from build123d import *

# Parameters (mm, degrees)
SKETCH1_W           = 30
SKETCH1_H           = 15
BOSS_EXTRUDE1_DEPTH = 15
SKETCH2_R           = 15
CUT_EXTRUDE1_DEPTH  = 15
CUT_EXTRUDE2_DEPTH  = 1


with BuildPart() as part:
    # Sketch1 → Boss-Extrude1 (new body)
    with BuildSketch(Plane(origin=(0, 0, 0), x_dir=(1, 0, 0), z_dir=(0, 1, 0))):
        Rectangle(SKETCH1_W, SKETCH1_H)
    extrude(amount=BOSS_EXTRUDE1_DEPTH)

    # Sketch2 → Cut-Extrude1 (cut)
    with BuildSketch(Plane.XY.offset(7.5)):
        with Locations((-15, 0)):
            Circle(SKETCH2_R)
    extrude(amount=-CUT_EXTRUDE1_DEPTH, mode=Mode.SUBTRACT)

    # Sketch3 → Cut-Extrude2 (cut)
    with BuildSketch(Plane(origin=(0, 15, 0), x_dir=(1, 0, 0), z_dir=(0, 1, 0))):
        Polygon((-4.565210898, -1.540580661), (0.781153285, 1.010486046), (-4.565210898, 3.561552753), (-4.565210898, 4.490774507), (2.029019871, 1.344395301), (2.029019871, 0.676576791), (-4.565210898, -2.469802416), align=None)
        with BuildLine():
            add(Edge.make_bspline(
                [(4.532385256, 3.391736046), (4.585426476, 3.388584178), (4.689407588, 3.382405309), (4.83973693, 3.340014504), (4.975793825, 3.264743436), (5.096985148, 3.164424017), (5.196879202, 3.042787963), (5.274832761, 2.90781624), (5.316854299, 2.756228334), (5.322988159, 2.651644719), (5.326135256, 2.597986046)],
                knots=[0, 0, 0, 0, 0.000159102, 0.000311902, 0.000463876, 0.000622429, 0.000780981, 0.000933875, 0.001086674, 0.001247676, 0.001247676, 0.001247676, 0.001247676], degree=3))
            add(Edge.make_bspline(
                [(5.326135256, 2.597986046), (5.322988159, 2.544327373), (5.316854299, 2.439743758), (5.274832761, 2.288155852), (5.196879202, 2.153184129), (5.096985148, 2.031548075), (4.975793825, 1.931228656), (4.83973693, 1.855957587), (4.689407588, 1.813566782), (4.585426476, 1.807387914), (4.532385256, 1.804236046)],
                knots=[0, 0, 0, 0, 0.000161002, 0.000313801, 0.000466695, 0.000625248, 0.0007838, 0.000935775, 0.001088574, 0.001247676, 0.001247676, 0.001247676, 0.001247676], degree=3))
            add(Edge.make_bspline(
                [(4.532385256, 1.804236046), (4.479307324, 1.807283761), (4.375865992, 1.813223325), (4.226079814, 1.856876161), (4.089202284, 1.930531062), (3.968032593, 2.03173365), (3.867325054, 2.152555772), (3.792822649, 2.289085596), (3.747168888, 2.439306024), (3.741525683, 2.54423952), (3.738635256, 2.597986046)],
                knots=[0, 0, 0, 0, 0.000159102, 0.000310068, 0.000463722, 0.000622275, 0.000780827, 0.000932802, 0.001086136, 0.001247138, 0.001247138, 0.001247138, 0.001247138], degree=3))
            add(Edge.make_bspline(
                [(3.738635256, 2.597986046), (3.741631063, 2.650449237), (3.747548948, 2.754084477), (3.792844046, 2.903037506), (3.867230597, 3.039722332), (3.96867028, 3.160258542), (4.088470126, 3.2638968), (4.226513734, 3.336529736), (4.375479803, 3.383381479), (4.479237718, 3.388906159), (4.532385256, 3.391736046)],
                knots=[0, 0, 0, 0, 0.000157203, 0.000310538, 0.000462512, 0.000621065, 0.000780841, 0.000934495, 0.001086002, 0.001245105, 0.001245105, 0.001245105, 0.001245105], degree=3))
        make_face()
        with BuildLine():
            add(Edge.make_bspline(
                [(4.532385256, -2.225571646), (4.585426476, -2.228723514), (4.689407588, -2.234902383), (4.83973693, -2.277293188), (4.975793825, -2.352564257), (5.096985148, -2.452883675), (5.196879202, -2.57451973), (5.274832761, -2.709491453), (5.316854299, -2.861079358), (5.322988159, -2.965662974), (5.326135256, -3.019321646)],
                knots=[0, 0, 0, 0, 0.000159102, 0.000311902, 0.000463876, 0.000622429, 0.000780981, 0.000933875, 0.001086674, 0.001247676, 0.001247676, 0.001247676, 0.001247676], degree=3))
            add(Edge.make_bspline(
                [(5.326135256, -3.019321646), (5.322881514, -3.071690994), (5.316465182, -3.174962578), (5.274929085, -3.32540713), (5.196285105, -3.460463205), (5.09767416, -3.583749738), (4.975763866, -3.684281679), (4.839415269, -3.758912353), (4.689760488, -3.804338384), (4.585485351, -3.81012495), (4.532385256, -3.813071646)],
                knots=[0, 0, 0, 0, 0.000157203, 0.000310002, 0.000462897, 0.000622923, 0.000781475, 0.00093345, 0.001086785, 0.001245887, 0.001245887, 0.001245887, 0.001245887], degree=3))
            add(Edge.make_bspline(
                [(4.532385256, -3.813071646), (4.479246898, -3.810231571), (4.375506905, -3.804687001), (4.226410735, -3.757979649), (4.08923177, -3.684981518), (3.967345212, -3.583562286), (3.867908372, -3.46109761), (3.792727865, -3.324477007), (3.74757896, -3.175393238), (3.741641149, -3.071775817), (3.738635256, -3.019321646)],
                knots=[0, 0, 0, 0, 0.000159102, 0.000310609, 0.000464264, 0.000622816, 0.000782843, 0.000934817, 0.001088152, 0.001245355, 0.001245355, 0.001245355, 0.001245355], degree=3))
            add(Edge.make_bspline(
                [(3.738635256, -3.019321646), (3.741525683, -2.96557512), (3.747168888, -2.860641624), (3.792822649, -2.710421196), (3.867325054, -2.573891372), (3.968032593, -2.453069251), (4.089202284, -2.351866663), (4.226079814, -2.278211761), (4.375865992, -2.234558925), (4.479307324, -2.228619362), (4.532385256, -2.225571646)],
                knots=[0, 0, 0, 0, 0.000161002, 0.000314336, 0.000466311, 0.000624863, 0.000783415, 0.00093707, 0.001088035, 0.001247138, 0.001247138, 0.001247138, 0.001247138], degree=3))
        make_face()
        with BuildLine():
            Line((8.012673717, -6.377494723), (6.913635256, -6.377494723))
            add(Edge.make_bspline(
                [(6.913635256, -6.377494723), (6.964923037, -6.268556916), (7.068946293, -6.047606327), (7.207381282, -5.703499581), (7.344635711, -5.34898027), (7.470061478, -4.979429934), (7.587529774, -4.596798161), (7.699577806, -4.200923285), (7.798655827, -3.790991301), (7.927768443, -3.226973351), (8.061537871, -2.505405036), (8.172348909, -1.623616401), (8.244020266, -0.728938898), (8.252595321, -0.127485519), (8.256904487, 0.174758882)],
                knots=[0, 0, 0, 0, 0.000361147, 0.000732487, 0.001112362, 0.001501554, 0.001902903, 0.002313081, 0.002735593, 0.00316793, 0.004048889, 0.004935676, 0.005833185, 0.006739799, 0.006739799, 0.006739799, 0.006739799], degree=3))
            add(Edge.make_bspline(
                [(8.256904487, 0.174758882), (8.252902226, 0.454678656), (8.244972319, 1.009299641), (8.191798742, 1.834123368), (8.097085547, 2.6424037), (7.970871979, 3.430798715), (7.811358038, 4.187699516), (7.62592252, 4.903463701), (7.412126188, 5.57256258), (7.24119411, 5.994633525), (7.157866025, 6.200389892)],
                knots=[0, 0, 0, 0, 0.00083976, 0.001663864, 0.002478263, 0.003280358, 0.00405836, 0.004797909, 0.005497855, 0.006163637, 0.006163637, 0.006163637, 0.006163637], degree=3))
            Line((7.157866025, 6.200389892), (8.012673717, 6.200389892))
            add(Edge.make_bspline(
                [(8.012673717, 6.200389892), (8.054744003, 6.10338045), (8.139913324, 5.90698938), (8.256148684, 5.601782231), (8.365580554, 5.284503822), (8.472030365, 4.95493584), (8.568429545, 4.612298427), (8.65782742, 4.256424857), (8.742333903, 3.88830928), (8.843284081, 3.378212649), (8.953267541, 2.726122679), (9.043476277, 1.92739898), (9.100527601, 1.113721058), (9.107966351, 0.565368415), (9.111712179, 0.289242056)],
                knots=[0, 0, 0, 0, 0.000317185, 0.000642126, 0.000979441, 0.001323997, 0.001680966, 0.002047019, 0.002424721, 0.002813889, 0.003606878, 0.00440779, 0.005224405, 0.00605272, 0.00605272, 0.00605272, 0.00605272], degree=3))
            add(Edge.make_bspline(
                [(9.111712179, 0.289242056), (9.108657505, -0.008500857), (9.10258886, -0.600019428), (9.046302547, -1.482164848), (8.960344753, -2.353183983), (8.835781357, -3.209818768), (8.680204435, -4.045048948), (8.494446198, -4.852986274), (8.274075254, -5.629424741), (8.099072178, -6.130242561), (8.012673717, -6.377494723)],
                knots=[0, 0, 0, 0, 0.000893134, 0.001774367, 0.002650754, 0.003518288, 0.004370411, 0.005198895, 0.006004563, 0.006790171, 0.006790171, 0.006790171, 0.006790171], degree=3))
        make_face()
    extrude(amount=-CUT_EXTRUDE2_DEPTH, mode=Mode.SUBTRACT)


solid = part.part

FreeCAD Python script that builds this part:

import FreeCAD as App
import Part
import Sketcher
from FreeCAD import Vector
Q = App.Units.Quantity

doc = App.newDocument("Part")
body = doc.addObject("PartDesign::Body", "Body")

# Sketch on XZ plane
sketch1 = body.newObject("Sketcher::SketchObject", "Sketch")
sketch1.AttachmentSupport = (doc.getObject("XZ_Plane"), [""])
sketch1.MapMode = "FlatFace"
sketch1.addGeometry([
    Part.LineSegment(Vector(-15, -8, 0), Vector(-15, 8, 0)),
    Part.LineSegment(Vector(-15, 8, 0), Vector(15, 8, 0)),
    Part.LineSegment(Vector(15, 8, 0), Vector(15, -8, 0)),
    Part.LineSegment(Vector(15, -8, 0), Vector(-15, -8, 0)),
], False)
sketch1.addConstraint([
    Sketcher.Constraint("Coincident", 0, 2, 1, 1),
    Sketcher.Constraint("Coincident", 1, 2, 2, 1),
    Sketcher.Constraint("Coincident", 2, 2, 3, 1),
    Sketcher.Constraint("Coincident", 3, 2, 0, 1),
    Sketcher.Constraint("Vertical", 0),
    Sketcher.Constraint("Horizontal", 1),
    Sketcher.Constraint("Vertical", 2),
    Sketcher.Constraint("Horizontal", 3),
    Sketcher.Constraint("Symmetric", 0, 2, 2, 2, -1, 1),
    Sketcher.Constraint("DistanceX", 1, 1, 1, 2, Q("30 mm")),
    Sketcher.Constraint("DistanceY", 0, 1, 0, 2, Q("15 mm")),
])
pad1 = body.newObject("PartDesign::Pad", "Pad")
pad1.Profile = sketch1
pad1.Length = 15
pad1.Reversed = True

# Sketch on XY plane
sketch2 = body.newObject("Sketcher::SketchObject", "Sketch001")
sketch2.AttachmentSupport = (doc.getObject("XY_Plane"), [""])
sketch2.MapMode = "FlatFace"
sketch2.AttachmentOffset = App.Placement(Vector(0, 0, 7.5), App.Rotation())
sketch2.addGeometry(Part.Circle(Vector(-15, 0, 0), Vector(0, 0, 1), 15), False)
sketch2.addConstraint([
    Sketcher.Constraint("PointOnObject", 0, 3, -1),
    Sketcher.Constraint("Diameter", 0, Q("30 mm")),
    Sketcher.Constraint("DistanceX", 0, 3, -1, 1, Q("15 mm")),
])
pocket1 = body.newObject("PartDesign::Pocket", "Pocket")
pocket1.Profile = sketch2
pocket1.Length = 15

# Sketch on XZ plane
sketch3 = body.newObject("Sketcher::SketchObject", "Sketch002")
sketch3.AttachmentSupport = (doc.getObject("XZ_Plane"), [""])
sketch3.MapMode = "FlatFace"
sketch3.AttachmentOffset = App.Placement(Vector(0, 0, -15), App.Rotation())
sketch3.addGeometry([
    Part.LineSegment(Vector(0.781153, -1.010486, 0), Vector(-4.565211, 1.540581, 0)),  # 0
    Part.LineSegment(Vector(-4.565211, 1.540581, 0), Vector(-4.565211, 2.469802, 0)),  # 1
    Part.LineSegment(Vector(-4.565211, 2.469802, 0), Vector(2.02902, -0.676577, 0)),  # 2
    Part.LineSegment(Vector(2.02902, -0.676577, 0), Vector(2.02902, -1.344395, 0)),  # 3
    Part.LineSegment(Vector(2.02902, -1.344395, 0), Vector(-4.565211, -4.490775, 0)),  # 4
    Part.LineSegment(Vector(-4.565211, -4.490775, 0), Vector(-4.565211, -3.561553, 0)),  # 5
    Part.LineSegment(Vector(-4.565211, -3.561553, 0), Vector(0.781153, -1.010486, 0)),  # 6
    Part.BSplineCurve([Vector(4.532385, -3.391736, 0), Vector(4.585426, -3.388584, 0), Vector(4.689408, -3.382405, 0), Vector(4.839737, -3.340015, 0), Vector(4.975794, -3.264743, 0), Vector(5.096985, -3.164424, 0), Vector(5.196879, -3.042788, 0), Vector(5.274833, -2.907816, 0), Vector(5.316854, -2.756228, 0), Vector(5.322988, -2.651645, 0), Vector(5.326135, -2.597986, 0)], [4, 1, 1, 1, 1, 1, 1, 1, 4], [0, 0.000159102, 0.000311902, 0.000463876, 0.000622429, 0.000780981, 0.000933875, 0.001086674, 0.001247676], False, 3, [1, 1, 1, 1, 1, 1, 1, 1, 1, 1, 1], False),  # 7
    Part.BSplineCurve([Vector(3.738635, -2.597986, 0), Vector(3.741631, -2.650449, 0), Vector(3.747549, -2.754084, 0), Vector(3.792844, -2.903038, 0), Vector(3.867231, -3.039722, 0), Vector(3.96867, -3.160259, 0), Vector(4.08847, -3.263897, 0), Vector(4.226514, -3.33653, 0), Vector(4.37548, -3.383381, 0), Vector(4.479238, -3.388906, 0), Vector(4.532385, -3.391736, 0)], [4, 1, 1, 1, 1, 1, 1, 1, 4], [0, 0.000157203, 0.000310538, 0.000462512, 0.000621065, 0.000780841, 0.000934495, 0.001086002, 0.001245105], False, 3, [1, 1, 1, 1, 1, 1, 1, 1, 1, 1, 1], False),  # 8
    Part.BSplineCurve([Vector(4.532385, -1.804236, 0), Vector(4.479307, -1.807284, 0), Vector(4.375866, -1.813223, 0), Vector(4.22608, -1.856876, 0), Vector(4.089202, -1.930531, 0), Vector(3.968033, -2.031734, 0), Vector(3.867325, -2.152556, 0), Vector(3.792823, -2.289086, 0), Vector(3.747169, -2.439306, 0), Vector(3.741526, -2.54424, 0), Vector(3.738635, -2.597986, 0)], [4, 1, 1, 1, 1, 1, 1, 1, 4], [0, 0.000159102, 0.000310068, 0.000463722, 0.000622275, 0.000780827, 0.000932802, 0.001086136, 0.001247138], False, 3, [1, 1, 1, 1, 1, 1, 1, 1, 1, 1, 1], False),  # 9
    Part.BSplineCurve([Vector(5.326135, -2.597986, 0), Vector(5.322988, -2.544327, 0), Vector(5.316854, -2.439744, 0), Vector(5.274833, -2.288156, 0), Vector(5.196879, -2.153184, 0), Vector(5.096985, -2.031548, 0), Vector(4.975794, -1.931229, 0), Vector(4.839737, -1.855958, 0), Vector(4.689408, -1.813567, 0), Vector(4.585426, -1.807388, 0), Vector(4.532385, -1.804236, 0)], [4, 1, 1, 1, 1, 1, 1, 1, 4], [0, 0.000161002, 0.000313801, 0.000466695, 0.000625248, 0.0007838, 0.000935775, 0.001088574, 0.001247676], False, 3, [1, 1, 1, 1, 1, 1, 1, 1, 1, 1, 1], False),  # 10
    Part.BSplineCurve([Vector(4.532385, 2.225572, 0), Vector(4.585426, 2.228724, 0), Vector(4.689408, 2.234902, 0), Vector(4.839737, 2.277293, 0), Vector(4.975794, 2.352564, 0), Vector(5.096985, 2.452884, 0), Vector(5.196879, 2.57452, 0), Vector(5.274833, 2.709491, 0), Vector(5.316854, 2.861079, 0), Vector(5.322988, 2.965663, 0), Vector(5.326135, 3.019322, 0)], [4, 1, 1, 1, 1, 1, 1, 1, 4], [0, 0.000159102, 0.000311902, 0.000463876, 0.000622429, 0.000780981, 0.000933875, 0.001086674, 0.001247676], False, 3, [1, 1, 1, 1, 1, 1, 1, 1, 1, 1, 1], False),  # 11
    Part.BSplineCurve([Vector(3.738635, 3.019322, 0), Vector(3.741526, 2.965575, 0), Vector(3.747169, 2.860642, 0), Vector(3.792823, 2.710421, 0), Vector(3.867325, 2.573891, 0), Vector(3.968033, 2.453069, 0), Vector(4.089202, 2.351867, 0), Vector(4.22608, 2.278212, 0), Vector(4.375866, 2.234559, 0), Vector(4.479307, 2.228619, 0), Vector(4.532385, 2.225572, 0)], [4, 1, 1, 1, 1, 1, 1, 1, 4], [0, 0.000161002, 0.000314336, 0.000466311, 0.000624863, 0.000783415, 0.00093707, 0.001088035, 0.001247138], False, 3, [1, 1, 1, 1, 1, 1, 1, 1, 1, 1, 1], False),  # 12
    Part.BSplineCurve([Vector(4.532385, 3.813072, 0), Vector(4.479247, 3.810232, 0), Vector(4.375507, 3.804687, 0), Vector(4.226411, 3.75798, 0), Vector(4.089232, 3.684982, 0), Vector(3.967345, 3.583562, 0), Vector(3.867908, 3.461098, 0), Vector(3.792728, 3.324477, 0), Vector(3.747579, 3.175393, 0), Vector(3.741641, 3.071776, 0), Vector(3.738635, 3.019322, 0)], [4, 1, 1, 1, 1, 1, 1, 1, 4], [0, 0.000159102, 0.000310609, 0.000464264, 0.000622816, 0.000782843, 0.000934817, 0.001088152, 0.001245355], False, 3, [1, 1, 1, 1, 1, 1, 1, 1, 1, 1, 1], False),  # 13
    Part.BSplineCurve([Vector(5.326135, 3.019322, 0), Vector(5.322882, 3.071691, 0), Vector(5.316465, 3.174963, 0), Vector(5.274929, 3.325407, 0), Vector(5.196285, 3.460463, 0), Vector(5.097674, 3.58375, 0), Vector(4.975764, 3.684282, 0), Vector(4.839415, 3.758912, 0), Vector(4.68976, 3.804338, 0), Vector(4.585485, 3.810125, 0), Vector(4.532385, 3.813072, 0)], [4, 1, 1, 1, 1, 1, 1, 1, 4], [0, 0.000157203, 0.000310002, 0.000462897, 0.000622923, 0.000781475, 0.00093345, 0.001086785, 0.001245887], False, 3, [1, 1, 1, 1, 1, 1, 1, 1, 1, 1, 1], False),  # 14
    Part.LineSegment(Vector(6.913635, 6.377495, 0), Vector(8.012674, 6.377495, 0)),  # 15
    Part.BSplineCurve([Vector(9.111712, -0.289242, 0), Vector(9.108658, 0.008501, 0), Vector(9.102589, 0.600019, 0), Vector(9.046303, 1.482165, 0), Vector(8.960345, 2.353184, 0), Vector(8.835781, 3.209819, 0), Vector(8.680204, 4.045049, 0), Vector(8.494446, 4.852986, 0), Vector(8.274075, 5.629425, 0), Vector(8.099072, 6.130243, 0), Vector(8.012674, 6.377495, 0)], [4, 1, 1, 1, 1, 1, 1, 1, 4], [0, 0.000893134, 0.001774367, 0.002650754, 0.003518288, 0.004370411, 0.005198895, 0.006004563, 0.006790171], False, 3, [1, 1, 1, 1, 1, 1, 1, 1, 1, 1, 1], False),  # 16
    Part.BSplineCurve([Vector(8.012674, -6.20039, 0), Vector(8.054744, -6.10338, 0), Vector(8.139913, -5.906989, 0), Vector(8.256149, -5.601782, 0), Vector(8.365581, -5.284504, 0), Vector(8.47203, -4.954936, 0), Vector(8.56843, -4.612298, 0), Vector(8.657827, -4.256425, 0), Vector(8.742334, -3.888309, 0), Vector(8.843284, -3.378213, 0), Vector(8.953268, -2.726123, 0), Vector(9.043476, -1.927399, 0), Vector(9.100528, -1.113721, 0), Vector(9.107966, -0.565368, 0), Vector(9.111712, -0.289242, 0)], [4, 1, 1, 1, 1, 1, 1, 1, 1, 1, 1, 1, 4], [0, 0.000317185, 0.000642126, 0.000979441, 0.001323997, 0.001680966, 0.002047019, 0.002424721, 0.002813889, 0.003606878, 0.00440779, 0.005224405, 0.00605272], False, 3, [1, 1, 1, 1, 1, 1, 1, 1, 1, 1, 1, 1, 1, 1, 1], False),  # 17
    Part.LineSegment(Vector(8.012674, -6.20039, 0), Vector(7.157866, -6.20039, 0)),  # 18
    Part.BSplineCurve([Vector(8.256904, -0.174759, 0), Vector(8.252902, -0.454679, 0), Vector(8.244972, -1.0093, 0), Vector(8.191799, -1.834123, 0), Vector(8.097086, -2.642404, 0), Vector(7.970872, -3.430799, 0), Vector(7.811358, -4.1877, 0), Vector(7.625923, -4.903464, 0), Vector(7.412126, -5.572563, 0), Vector(7.241194, -5.994634, 0), Vector(7.157866, -6.20039, 0)], [4, 1, 1, 1, 1, 1, 1, 1, 4], [0, 0.00083976, 0.001663864, 0.002478263, 0.003280358, 0.00405836, 0.004797909, 0.005497855, 0.006163637], False, 3, [1, 1, 1, 1, 1, 1, 1, 1, 1, 1, 1], False),  # 19
    Part.BSplineCurve([Vector(6.913635, 6.377495, 0), Vector(6.964923, 6.268557, 0), Vector(7.068946, 6.047606, 0), Vector(7.207381, 5.7035, 0), Vector(7.344636, 5.34898, 0), Vector(7.470061, 4.97943, 0), Vector(7.58753, 4.596798, 0), Vector(7.699578, 4.200923, 0), Vector(7.798656, 3.790991, 0), Vector(7.927768, 3.226973, 0), Vector(8.061538, 2.505405, 0), Vector(8.172349, 1.623616, 0), Vector(8.24402, 0.728939, 0), Vector(8.252595, 0.127486, 0), Vector(8.256904, -0.174759, 0)], [4, 1, 1, 1, 1, 1, 1, 1, 1, 1, 1, 1, 4], [0, 0.000361147, 0.000732487, 0.001112362, 0.001501554, 0.001902903, 0.002313081, 0.002735593, 0.00316793, 0.004048889, 0.004935676, 0.005833185, 0.006739799], False, 3, [1, 1, 1, 1, 1, 1, 1, 1, 1, 1, 1, 1, 1, 1, 1], False),  # 20
], False)
sketch3.addConstraint([
    Sketcher.Constraint("Block", 7),
    Sketcher.Constraint("Block", 8),
    Sketcher.Constraint("Block", 9),
    Sketcher.Constraint("Block", 10),
    Sketcher.Constraint("Block", 11),
    Sketcher.Constraint("Block", 12),
    Sketcher.Constraint("Block", 13),
    Sketcher.Constraint("Block", 14),
    Sketcher.Constraint("Block", 16),
    Sketcher.Constraint("Block", 17),
    Sketcher.Constraint("Block", 19),
    Sketcher.Constraint("Block", 20),
    Sketcher.Constraint("Coincident", 0, 2, 1, 1),
    Sketcher.Constraint("Coincident", 1, 2, 2, 1),
    Sketcher.Constraint("Coincident", 2, 2, 3, 1),
    Sketcher.Constraint("Coincident", 3, 2, 4, 1),
    Sketcher.Constraint("Coincident", 4, 2, 5, 1),
    Sketcher.Constraint("Coincident", 5, 2, 6, 1),
    Sketcher.Constraint("Coincident", 6, 2, 0, 1),
    Sketcher.Constraint("Coincident", 15, 2, 16, 2),
    Sketcher.Constraint("Coincident", 17, 1, 18, 1),
    Sketcher.Constraint("Coincident", 18, 2, 19, 2),
    Sketcher.Constraint("Coincident", 20, 1, 15, 1),
    Sketcher.Constraint("Vertical", 1),
    Sketcher.Constraint("Vertical", 3),
    Sketcher.Constraint("Vertical", 5),
    Sketcher.Constraint("Vertical", 1, 2, 4, 2),
    Sketcher.Constraint("Equal", 1, 5),
    Sketcher.Constraint("Equal", 2, 4),
    Sketcher.Constraint("Equal", 0, 6),
    Sketcher.Constraint("DistanceY", 1, 1, 1, 2, Q("0.929222 mm")),
    Sketcher.Constraint("DistanceY", 3, 2, 3, 1, Q("0.667819 mm")),
    Sketcher.Constraint("DistanceX", 0, 2, -1, 1, Q("4.565211 mm")),
    Sketcher.Constraint("DistanceY", -1, 1, 0, 2, Q("1.540581 mm")),
    Sketcher.Constraint("DistanceX", -1, 1, 2, 2, Q("2.02902 mm")),
    Sketcher.Constraint("DistanceY", 2, 2, 1, 2, Q("3.146379 mm")),
    Sketcher.Constraint("DistanceX", 6, 2, 15, 2, Q("7.23152 mm")),
])
pocket2 = body.newObject("PartDesign::Pocket", "Pocket001")
pocket2.Profile = sketch3
pocket2.Length = 1
pocket2.Reversed = True

doc.recompute()
